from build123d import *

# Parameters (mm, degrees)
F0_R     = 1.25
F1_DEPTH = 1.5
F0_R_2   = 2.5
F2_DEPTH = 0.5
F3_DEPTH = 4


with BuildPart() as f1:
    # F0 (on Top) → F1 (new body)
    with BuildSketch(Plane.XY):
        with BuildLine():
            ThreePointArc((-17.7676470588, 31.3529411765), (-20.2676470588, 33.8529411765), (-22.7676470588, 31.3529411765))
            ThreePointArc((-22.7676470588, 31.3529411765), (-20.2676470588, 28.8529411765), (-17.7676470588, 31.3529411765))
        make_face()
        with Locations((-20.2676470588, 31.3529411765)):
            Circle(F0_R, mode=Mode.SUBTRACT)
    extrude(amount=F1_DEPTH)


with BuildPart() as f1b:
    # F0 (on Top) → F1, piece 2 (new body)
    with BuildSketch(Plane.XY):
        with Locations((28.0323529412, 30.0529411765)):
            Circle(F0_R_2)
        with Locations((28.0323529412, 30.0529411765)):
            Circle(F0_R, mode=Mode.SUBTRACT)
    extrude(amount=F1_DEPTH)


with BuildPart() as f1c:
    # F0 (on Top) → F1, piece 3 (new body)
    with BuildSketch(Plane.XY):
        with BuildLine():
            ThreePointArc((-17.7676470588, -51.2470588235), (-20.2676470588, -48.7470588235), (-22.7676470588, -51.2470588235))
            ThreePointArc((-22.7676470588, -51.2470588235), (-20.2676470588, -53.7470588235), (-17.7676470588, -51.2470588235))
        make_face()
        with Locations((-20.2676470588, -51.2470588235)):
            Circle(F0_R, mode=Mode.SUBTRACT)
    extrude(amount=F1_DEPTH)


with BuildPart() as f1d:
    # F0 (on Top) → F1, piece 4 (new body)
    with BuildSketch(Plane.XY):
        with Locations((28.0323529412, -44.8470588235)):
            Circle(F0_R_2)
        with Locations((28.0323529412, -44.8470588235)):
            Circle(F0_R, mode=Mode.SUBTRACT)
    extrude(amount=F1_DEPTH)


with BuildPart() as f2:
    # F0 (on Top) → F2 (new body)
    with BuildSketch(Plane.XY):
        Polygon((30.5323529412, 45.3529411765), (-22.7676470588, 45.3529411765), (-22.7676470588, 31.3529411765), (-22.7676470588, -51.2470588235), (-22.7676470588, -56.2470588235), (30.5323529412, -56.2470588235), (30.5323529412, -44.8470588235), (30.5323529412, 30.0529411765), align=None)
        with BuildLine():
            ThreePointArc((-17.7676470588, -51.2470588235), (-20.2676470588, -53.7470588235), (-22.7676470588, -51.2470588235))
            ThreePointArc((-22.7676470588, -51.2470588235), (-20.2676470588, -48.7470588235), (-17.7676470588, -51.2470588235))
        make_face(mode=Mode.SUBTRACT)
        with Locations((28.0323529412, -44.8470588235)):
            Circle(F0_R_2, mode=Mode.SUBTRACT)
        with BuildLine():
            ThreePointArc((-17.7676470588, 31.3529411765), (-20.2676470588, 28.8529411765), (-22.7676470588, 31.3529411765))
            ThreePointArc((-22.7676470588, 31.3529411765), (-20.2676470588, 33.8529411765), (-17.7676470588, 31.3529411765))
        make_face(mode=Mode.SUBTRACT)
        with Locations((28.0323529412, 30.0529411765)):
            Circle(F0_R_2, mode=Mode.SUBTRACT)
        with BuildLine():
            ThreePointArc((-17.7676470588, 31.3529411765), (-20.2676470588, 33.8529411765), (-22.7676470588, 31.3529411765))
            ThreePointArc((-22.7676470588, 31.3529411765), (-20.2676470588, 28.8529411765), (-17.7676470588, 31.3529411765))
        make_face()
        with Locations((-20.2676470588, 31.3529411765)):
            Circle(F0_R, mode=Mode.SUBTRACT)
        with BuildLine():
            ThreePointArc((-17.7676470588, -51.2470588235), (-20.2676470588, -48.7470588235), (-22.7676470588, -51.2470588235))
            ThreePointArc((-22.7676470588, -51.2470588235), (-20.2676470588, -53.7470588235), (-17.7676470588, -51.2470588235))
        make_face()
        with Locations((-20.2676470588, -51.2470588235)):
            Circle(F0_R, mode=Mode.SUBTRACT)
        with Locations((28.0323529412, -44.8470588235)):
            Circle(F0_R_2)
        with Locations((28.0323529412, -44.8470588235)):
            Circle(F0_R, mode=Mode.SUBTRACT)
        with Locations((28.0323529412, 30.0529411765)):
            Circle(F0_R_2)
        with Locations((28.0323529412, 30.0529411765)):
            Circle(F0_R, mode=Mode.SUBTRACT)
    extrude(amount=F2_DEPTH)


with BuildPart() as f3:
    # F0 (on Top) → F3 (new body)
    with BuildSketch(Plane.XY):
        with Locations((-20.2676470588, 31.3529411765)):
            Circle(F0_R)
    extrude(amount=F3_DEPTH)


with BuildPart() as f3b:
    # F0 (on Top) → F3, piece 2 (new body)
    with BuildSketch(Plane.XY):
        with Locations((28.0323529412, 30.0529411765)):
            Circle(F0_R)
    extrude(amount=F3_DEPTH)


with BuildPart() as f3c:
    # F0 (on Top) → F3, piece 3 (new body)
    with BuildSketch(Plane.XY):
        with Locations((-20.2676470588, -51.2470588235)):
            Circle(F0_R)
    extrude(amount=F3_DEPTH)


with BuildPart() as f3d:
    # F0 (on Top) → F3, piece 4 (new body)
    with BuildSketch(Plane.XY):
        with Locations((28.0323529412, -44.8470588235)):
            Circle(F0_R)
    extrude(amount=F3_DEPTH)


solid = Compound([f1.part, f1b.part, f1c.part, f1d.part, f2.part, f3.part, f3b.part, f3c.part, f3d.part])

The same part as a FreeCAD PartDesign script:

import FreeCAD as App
import Part
import Sketcher
from FreeCAD import Vector


def add_polygon(sketch, points):
    """Adds a closed chain of lines whose ends are joined by coincident constraints."""
    first, n = sketch.GeometryCount, len(points)
    for a, b in zip(points, points[1:] + points[:1]):
        sketch.addGeometry(Part.LineSegment(App.Vector(*a, 0), App.Vector(*b, 0)), False)
    for i in range(n):
        sketch.addConstraint(Sketcher.Constraint("Coincident", first + i, 2, first + (i + 1) % n, 1))

doc = App.newDocument("Part")
body = doc.addObject("PartDesign::Body", "Body")

# Sketch on XY plane
sketch1 = doc.addObject("Sketcher::SketchObject", "Sketch")
body.addObject(sketch1)
sketch1.AttachmentSupport = (doc.XY_Plane, [""])
sketch1.MapMode = "FlatFace"
sketch1.addGeometry([
    Part.Circle(Vector(-20.3, 31.4, 0), Vector(0, 0, 1), 2.5),
    Part.Circle(Vector(-20.3, 31.4, 0), Vector(0, 0, 1), 1.2),
], False)
sketch1.addConstraint([
    Sketcher.Constraint("Coincident", 1, 3, 0, 3),
    Sketcher.Constraint("Diameter", 0, 5.0),
    Sketcher.Constraint("Diameter", 1, 2.5),
    Sketcher.Constraint("DistanceY", -1, 1, 0, 3, 31.352941),
    Sketcher.Constraint("DistanceX", 0, 3, -1, 1, 20.267647),
])
pad1 = doc.addObject("PartDesign::Pad", "Pad")
body.addObject(pad1)
pad1.Profile = sketch1
pad1.Length = 1.5
body2 = doc.addObject("PartDesign::Body", "Body001")

# Sketch on XY plane
sketch2 = doc.addObject("Sketcher::SketchObject", "Sketch001")
body2.addObject(sketch2)
sketch2.AttachmentSupport = (doc.getObject("XY_Plane001"), [""])
sketch2.MapMode = "FlatFace"
sketch2.addGeometry([
    Part.Circle(Vector(28, 30.1, 0), Vector(0, 0, 1), 2.5),
    Part.Circle(Vector(28, 30.1, 0), Vector(0, 0, 1), 1.2),
], False)
sketch2.addConstraint([
    Sketcher.Constraint("Coincident", 1, 3, 0, 3),
    Sketcher.Constraint("Diameter", 0, 5.0),
    Sketcher.Constraint("Diameter", 1, 2.5),
    Sketcher.Constraint("DistanceY", -1, 1, 0, 3, 30.052941),
    Sketcher.Constraint("DistanceX", -1, 1, 0, 3, 28.032353),
])
pad2 = doc.addObject("PartDesign::Pad", "Pad001")
body2.addObject(pad2)
pad2.Profile = sketch2
pad2.Length = 1.5
body3 = doc.addObject("PartDesign::Body", "Body002")

# Sketch on XY plane
sketch3 = doc.addObject("Sketcher::SketchObject", "Sketch002")
body3.addObject(sketch3)
sketch3.AttachmentSupport = (doc.getObject("XY_Plane002"), [""])
sketch3.MapMode = "FlatFace"
sketch3.addGeometry([
    Part.Circle(Vector(-20.3, -51.2, 0), Vector(0, 0, 1), 2.5),
    Part.Circle(Vector(-20.3, -51.2, 0), Vector(0, 0, 1), 1.2),
], False)
sketch3.addConstraint([
    Sketcher.Constraint("Coincident", 1, 3, 0, 3),
    Sketcher.Constraint("Diameter", 0, 5.0),
    Sketcher.Constraint("Diameter", 1, 2.5),
    Sketcher.Constraint("DistanceY", 0, 3, -1, 1, 51.247059),
    Sketcher.Constraint("DistanceX", 0, 3, -1, 1, 20.267647),
])
pad3 = doc.addObject("PartDesign::Pad", "Pad002")
body3.addObject(pad3)
pad3.Profile = sketch3
pad3.Length = 1.5
body4 = doc.addObject("PartDesign::Body", "Body003")

# Sketch on XY plane
sketch4 = doc.addObject("Sketcher::SketchObject", "Sketch003")
body4.addObject(sketch4)
sketch4.AttachmentSupport = (doc.getObject("XY_Plane003"), [""])
sketch4.MapMode = "FlatFace"
sketch4.addGeometry([
    Part.Circle(Vector(28, -44.8, 0), Vector(0, 0, 1), 2.5),
    Part.Circle(Vector(28, -44.8, 0), Vector(0, 0, 1), 1.2),
], False)
sketch4.addConstraint([
    Sketcher.Constraint("Coincident", 1, 3, 0, 3),
    Sketcher.Constraint("Diameter", 0, 5.0),
    Sketcher.Constraint("Diameter", 1, 2.5),
    Sketcher.Constraint("DistanceY", 0, 3, -1, 1, 44.847059),
    Sketcher.Constraint("DistanceX", -1, 1, 0, 3, 28.032353),
])
pad4 = doc.addObject("PartDesign::Pad", "Pad003")
body4.addObject(pad4)
pad4.Profile = sketch4
pad4.Length = 1.5
body5 = doc.addObject("PartDesign::Body", "Body004")

# Sketch on XY plane
sketch5 = doc.addObject("Sketcher::SketchObject", "Sketch004")
body5.addObject(sketch5)
sketch5.AttachmentSupport = (doc.getObject("XY_Plane004"), [""])
sketch5.MapMode = "FlatFace"
add_polygon(sketch5, [(-22.8, -56.2), (30.5, -56.2), (30.5, 45.4), (-22.8, 45.4)])  # lines 0-3
sketch5.addGeometry(Part.Circle(Vector(-20.3, -51.2, 0), Vector(0, 0, 1), 1.2), False)  # 4
sketch5.addGeometry(Part.Circle(Vector(28, -44.8, 0), Vector(0, 0, 1), 1.2), False)  # 5
sketch5.addGeometry(Part.Circle(Vector(-20.3, 31.4, 0), Vector(0, 0, 1), 1.2), False)  # 6
sketch5.addGeometry(Part.Circle(Vector(28, 30.1, 0), Vector(0, 0, 1), 1.2), False)  # 7
sketch5.addConstraint([
    Sketcher.Constraint("Horizontal", 0),
    Sketcher.Constraint("Vertical", 1),
    Sketcher.Constraint("Horizontal", 2),
    Sketcher.Constraint("Vertical", 3),
    Sketcher.Constraint("Equal", 4, 5),
    Sketcher.Constraint("Equal", 5, 6),
    Sketcher.Constraint("Equal", 6, 7),
    Sketcher.Constraint("Vertical", 4, 3, 6, 3),
    Sketcher.Constraint("Vertical", 5, 3, 7, 3),
    Sketcher.Constraint("Diameter", 4, 2.5),
    Sketcher.Constraint("DistanceX", 0, 1, 0, 2, 53.3),
    Sketcher.Constraint("DistanceY", 1, 1, 1, 2, 101.6),
    Sketcher.Constraint("DistanceY", 0, 2, 4, 3, 5.0),
    Sketcher.Constraint("DistanceY", 6, 3, 1, 2, 14.0),
    Sketcher.Constraint("DistanceX", 4, 3, 5, 3, 48.3),
    Sketcher.Constraint("DistanceY", 4, 3, 5, 3, 6.4),
    Sketcher.Constraint("DistanceY", 7, 3, 6, 3, 1.3),
    Sketcher.Constraint("DistanceX", 5, 3, 0, 2, 2.5),
    Sketcher.Constraint("DistanceY", 4, 3, -1, 1, 51.247059),
    Sketcher.Constraint("DistanceX", 4, 3, -1, 1, 20.267647),
])
pad5 = doc.addObject("PartDesign::Pad", "Pad004")
body5.addObject(pad5)
pad5.Profile = sketch5
pad5.Length = 0.5
body6 = doc.addObject("PartDesign::Body", "Body005")

# Sketch on XY plane
sketch6 = doc.addObject("Sketcher::SketchObject", "Sketch005")
body6.addObject(sketch6)
sketch6.AttachmentSupport = (doc.getObject("XY_Plane005"), [""])
sketch6.MapMode = "FlatFace"
sketch6.addGeometry(Part.Circle(Vector(-20.3, 31.4, 0), Vector(0, 0, 1), 1.2), False)
sketch6.addConstraint([
    Sketcher.Constraint("Diameter", 0, 2.5),
    Sketcher.Constraint("DistanceY", -1, 1, 0, 3, 31.352941),
    Sketcher.Constraint("DistanceX", 0, 3, -1, 1, 20.267647),
])
pad6 = doc.addObject("PartDesign::Pad", "Pad005")
body6.addObject(pad6)
pad6.Profile = sketch6
pad6.Length = 4
body7 = doc.addObject("PartDesign::Body", "Body006")

# Sketch on XY plane
sketch7 = doc.addObject("Sketcher::SketchObject", "Sketch006")
body7.addObject(sketch7)
sketch7.AttachmentSupport = (doc.getObject("XY_Plane006"), [""])
sketch7.MapMode = "FlatFace"
sketch7.addGeometry(Part.Circle(Vector(28, 30.1, 0), Vector(0, 0, 1), 1.2), False)
sketch7.addConstraint([
    Sketcher.Constraint("Diameter", 0, 2.5),
    Sketcher.Constraint("DistanceY", -1, 1, 0, 3, 30.052941),
    Sketcher.Constraint("DistanceX", -1, 1, 0, 3, 28.032353),
])
pad7 = doc.addObject("PartDesign::Pad", "Pad006")
body7.addObject(pad7)
pad7.Profile = sketch7
pad7.Length = 4
body8 = doc.addObject("PartDesign::Body", "Body007")

# Sketch on XY plane
sketch8 = doc.addObject("Sketcher::SketchObject", "Sketch007")
body8.addObject(sketch8)
sketch8.AttachmentSupport = (doc.getObject("XY_Plane007"), [""])
sketch8.MapMode = "FlatFace"
sketch8.addGeometry(Part.Circle(Vector(-20.3, -51.2, 0), Vector(0, 0, 1), 1.2), False)
sketch8.addConstraint([
    Sketcher.Constraint("Diameter", 0, 2.5),
    Sketcher.Constraint("DistanceY", 0, 3, -1, 1, 51.247059),
    Sketcher.Constraint("DistanceX", 0, 3, -1, 1, 20.267647),
])
pad8 = doc.addObject("PartDesign::Pad", "Pad007")
body8.addObject(pad8)
pad8.Profile = sketch8
pad8.Length = 4
body9 = doc.addObject("PartDesign::Body", "Body008")

# Sketch on XY plane
sketch9 = doc.addObject("Sketcher::SketchObject", "Sketch008")
body9.addObject(sketch9)
sketch9.AttachmentSupport = (doc.getObject("XY_Plane008"), [""])
sketch9.MapMode = "FlatFace"
sketch9.addGeometry(Part.Circle(Vector(28, -44.8, 0), Vector(0, 0, 1), 1.2), False)
sketch9.addConstraint([
    Sketcher.Constraint("Diameter", 0, 2.5),
    Sketcher.Constraint("DistanceY", 0, 3, -1, 1, 44.847059),
    Sketcher.Constraint("DistanceX", -1, 1, 0, 3, 28.032353),
])
pad9 = doc.addObject("PartDesign::Pad", "Pad008")
body9.addObject(pad9)
pad9.Profile = sketch9
pad9.Length = 4

doc.recompute()
